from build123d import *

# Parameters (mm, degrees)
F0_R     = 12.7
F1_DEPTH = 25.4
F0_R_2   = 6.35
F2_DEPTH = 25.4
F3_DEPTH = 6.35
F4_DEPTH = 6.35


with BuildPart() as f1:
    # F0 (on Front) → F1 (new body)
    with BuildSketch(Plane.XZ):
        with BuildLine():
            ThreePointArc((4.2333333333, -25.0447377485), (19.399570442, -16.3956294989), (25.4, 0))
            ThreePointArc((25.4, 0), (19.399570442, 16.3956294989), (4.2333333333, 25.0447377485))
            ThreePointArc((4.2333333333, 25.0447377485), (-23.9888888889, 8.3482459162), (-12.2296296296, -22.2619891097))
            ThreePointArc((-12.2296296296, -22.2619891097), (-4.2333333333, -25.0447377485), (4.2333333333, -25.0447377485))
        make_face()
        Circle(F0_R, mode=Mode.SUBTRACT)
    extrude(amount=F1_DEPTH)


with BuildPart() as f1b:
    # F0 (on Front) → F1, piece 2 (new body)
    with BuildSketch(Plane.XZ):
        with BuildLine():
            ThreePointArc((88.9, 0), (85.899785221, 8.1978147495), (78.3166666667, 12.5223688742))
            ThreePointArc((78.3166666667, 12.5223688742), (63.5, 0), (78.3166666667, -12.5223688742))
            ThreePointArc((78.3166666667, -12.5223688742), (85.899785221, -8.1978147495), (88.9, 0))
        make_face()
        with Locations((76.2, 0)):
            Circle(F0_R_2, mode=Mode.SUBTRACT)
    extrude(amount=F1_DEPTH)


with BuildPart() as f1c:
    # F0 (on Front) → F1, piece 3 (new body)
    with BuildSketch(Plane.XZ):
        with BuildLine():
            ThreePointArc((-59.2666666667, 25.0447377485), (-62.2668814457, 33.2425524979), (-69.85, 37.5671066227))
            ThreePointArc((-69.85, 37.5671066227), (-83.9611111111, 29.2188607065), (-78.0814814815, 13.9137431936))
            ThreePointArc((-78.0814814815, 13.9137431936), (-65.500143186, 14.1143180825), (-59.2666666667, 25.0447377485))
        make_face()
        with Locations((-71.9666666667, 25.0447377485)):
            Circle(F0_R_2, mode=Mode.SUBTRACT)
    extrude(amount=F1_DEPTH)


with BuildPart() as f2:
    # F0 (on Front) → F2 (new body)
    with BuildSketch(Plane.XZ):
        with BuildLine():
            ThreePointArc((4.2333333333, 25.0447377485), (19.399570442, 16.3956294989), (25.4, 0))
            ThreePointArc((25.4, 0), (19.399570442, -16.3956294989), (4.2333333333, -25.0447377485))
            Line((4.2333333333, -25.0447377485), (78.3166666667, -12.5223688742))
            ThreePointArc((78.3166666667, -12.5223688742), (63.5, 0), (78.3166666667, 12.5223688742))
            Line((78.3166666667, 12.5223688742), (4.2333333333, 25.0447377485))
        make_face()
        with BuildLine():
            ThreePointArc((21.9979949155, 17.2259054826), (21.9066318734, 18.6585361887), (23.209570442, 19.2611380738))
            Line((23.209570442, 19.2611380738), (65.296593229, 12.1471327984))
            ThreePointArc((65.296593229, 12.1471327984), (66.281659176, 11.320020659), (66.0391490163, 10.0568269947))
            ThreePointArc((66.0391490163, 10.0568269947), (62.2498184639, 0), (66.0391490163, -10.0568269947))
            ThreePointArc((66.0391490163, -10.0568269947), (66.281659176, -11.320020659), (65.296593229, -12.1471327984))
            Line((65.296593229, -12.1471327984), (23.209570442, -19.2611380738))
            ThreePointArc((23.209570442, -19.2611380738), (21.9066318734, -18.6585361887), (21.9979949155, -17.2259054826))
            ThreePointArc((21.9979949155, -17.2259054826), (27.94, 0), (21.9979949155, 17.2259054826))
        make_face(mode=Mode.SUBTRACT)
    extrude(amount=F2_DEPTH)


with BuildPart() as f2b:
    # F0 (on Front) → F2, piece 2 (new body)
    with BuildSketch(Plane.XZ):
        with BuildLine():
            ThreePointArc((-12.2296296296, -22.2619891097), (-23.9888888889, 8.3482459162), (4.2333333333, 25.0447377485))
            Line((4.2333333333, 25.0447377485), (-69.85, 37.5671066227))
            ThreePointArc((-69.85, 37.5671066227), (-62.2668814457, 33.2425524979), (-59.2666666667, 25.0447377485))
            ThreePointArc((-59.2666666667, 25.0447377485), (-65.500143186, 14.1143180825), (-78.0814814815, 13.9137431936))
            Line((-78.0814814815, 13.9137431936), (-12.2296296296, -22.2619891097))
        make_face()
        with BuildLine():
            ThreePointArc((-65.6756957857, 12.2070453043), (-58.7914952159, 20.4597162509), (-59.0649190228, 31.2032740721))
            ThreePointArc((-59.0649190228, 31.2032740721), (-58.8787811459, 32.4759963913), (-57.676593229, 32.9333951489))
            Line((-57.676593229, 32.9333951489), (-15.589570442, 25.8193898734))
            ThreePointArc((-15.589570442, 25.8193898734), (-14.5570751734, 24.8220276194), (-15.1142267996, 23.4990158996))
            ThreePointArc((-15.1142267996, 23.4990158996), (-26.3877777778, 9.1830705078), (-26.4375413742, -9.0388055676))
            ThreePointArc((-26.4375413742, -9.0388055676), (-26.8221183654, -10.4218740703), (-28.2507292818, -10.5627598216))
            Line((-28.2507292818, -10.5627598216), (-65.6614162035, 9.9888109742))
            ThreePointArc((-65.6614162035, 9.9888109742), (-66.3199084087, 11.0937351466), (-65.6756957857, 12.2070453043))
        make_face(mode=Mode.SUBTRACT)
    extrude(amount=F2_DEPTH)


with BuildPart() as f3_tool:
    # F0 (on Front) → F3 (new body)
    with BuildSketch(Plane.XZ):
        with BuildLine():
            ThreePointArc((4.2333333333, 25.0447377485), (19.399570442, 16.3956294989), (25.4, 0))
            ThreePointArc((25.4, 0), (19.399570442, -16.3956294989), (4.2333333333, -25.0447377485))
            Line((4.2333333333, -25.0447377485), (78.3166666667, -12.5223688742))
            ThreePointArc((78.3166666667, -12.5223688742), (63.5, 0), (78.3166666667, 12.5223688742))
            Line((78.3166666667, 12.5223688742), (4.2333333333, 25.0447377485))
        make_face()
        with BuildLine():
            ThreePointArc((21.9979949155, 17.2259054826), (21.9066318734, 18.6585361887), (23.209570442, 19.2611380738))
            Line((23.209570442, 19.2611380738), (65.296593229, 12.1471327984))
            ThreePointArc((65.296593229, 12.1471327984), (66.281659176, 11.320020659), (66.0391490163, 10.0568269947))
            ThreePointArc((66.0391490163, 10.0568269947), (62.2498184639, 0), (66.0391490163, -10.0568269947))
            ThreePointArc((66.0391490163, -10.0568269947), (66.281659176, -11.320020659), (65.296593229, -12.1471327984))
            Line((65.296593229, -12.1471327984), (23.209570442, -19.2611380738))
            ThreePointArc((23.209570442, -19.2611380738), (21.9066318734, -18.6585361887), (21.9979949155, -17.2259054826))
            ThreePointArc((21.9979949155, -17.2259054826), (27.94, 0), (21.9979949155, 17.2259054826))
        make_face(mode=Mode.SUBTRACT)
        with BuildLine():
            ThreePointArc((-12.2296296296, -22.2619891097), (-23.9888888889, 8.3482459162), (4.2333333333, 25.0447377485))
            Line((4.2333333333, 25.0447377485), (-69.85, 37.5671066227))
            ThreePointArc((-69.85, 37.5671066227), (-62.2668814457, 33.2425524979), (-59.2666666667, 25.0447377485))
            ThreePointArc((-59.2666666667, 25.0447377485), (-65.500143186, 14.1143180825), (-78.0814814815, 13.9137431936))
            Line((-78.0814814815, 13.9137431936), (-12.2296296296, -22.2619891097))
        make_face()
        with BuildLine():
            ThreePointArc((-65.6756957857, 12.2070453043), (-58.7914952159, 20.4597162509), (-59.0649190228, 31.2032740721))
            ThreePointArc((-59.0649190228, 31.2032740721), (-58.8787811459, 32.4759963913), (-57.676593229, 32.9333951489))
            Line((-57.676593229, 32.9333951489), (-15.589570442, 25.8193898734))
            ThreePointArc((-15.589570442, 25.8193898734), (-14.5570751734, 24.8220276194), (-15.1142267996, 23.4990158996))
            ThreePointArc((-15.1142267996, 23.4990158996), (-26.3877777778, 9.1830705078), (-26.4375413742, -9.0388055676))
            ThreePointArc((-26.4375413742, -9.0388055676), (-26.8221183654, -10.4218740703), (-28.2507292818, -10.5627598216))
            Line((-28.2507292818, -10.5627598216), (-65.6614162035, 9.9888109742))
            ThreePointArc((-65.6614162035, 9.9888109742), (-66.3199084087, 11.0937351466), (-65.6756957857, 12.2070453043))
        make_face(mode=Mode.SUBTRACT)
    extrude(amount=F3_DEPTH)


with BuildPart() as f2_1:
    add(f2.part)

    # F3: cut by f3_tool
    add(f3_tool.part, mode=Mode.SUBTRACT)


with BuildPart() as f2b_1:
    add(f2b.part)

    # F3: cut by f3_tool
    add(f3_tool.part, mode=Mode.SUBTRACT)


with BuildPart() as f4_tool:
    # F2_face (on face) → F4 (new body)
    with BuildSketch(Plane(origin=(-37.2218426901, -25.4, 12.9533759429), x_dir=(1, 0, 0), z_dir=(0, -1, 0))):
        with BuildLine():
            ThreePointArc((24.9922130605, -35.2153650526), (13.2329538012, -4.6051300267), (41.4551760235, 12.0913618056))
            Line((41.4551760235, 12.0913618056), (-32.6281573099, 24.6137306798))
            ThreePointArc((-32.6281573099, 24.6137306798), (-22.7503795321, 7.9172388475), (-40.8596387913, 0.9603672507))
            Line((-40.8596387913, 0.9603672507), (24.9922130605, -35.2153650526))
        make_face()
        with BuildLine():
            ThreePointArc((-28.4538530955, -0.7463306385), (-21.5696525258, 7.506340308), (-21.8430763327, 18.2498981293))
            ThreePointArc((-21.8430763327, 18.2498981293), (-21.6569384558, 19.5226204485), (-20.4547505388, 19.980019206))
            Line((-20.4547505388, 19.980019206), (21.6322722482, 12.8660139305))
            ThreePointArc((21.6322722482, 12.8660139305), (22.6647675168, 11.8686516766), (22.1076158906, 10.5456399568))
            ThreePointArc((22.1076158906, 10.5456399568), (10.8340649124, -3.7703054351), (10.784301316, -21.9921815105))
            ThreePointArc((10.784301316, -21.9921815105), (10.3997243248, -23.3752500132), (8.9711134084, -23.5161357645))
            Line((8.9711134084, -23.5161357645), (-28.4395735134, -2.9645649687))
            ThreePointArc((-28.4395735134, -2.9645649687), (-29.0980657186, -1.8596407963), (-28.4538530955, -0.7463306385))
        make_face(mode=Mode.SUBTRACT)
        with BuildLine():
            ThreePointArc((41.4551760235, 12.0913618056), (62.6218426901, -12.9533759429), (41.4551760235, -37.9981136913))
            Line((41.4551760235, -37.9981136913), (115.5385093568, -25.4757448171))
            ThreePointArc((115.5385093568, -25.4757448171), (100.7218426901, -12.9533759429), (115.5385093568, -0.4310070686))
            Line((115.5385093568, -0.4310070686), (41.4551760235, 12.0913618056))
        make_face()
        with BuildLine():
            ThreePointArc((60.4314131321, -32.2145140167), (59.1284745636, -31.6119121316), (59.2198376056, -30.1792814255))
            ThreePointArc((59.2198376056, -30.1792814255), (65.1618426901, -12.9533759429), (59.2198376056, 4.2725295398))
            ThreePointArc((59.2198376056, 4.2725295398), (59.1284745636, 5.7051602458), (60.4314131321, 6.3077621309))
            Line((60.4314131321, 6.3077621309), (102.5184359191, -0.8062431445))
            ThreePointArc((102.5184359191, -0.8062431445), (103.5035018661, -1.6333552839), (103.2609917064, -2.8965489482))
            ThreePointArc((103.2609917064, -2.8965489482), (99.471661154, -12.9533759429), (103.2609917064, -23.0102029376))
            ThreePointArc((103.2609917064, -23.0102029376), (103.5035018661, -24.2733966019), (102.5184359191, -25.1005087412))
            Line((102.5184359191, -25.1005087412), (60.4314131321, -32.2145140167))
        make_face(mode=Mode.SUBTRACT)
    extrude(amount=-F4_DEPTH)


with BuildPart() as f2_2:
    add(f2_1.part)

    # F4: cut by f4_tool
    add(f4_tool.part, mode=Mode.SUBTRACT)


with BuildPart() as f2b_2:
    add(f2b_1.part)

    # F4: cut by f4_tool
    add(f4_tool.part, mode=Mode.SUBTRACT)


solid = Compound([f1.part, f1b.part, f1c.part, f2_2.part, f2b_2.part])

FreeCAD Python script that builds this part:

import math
import FreeCAD as App
import Part
import Sketcher
from FreeCAD import Vector
Q = App.Units.Quantity

doc = App.newDocument("Part")
body = doc.addObject("PartDesign::Body", "Body")

sketch1 = doc.addObject("Sketcher::SketchObject", "Sketch")
body.addObject(sketch1)
sketch1.AttachmentSupport = (doc.XZ_Plane, [""])
sketch1.MapMode = "FlatFace"
sketch1.addGeometry(Part.ArcOfCircle(Part.Circle(Vector(0, 0, 0), Vector(0, 0, 1), 25), math.radians(0), math.radians(80)), False)
sketch1.addGeometry(Part.ArcOfCircle(Part.Circle(Vector(0, 0, 0), Vector(0, 0, 1), 25), math.radians(80), math.radians(241)), False)
sketch1.addGeometry(Part.ArcOfCircle(Part.Circle(Vector(0, 0, 0), Vector(0, 0, 1), 25), math.radians(-119), math.radians(0)), False)
sketch1.addGeometry(Part.Circle(Vector(0, 0, 0), Vector(0, 0, 1), 13), False)
sketch1.addConstraint(Sketcher.Constraint("Tangent", 0, 2, 1, 1))
sketch1.addConstraint(Sketcher.Constraint("Tangent", 1, 2, 2, 1))
sketch1.addConstraint(Sketcher.Constraint("Tangent", 2, 2, 0, 1))
sketch1.addConstraint(Sketcher.Constraint("Coincident", 0, 3, -1, 1))
sketch1.addConstraint(Sketcher.Constraint("Coincident", 3, 3, -1, 1))
sketch1.addConstraint(Sketcher.Constraint("PointOnObject", 2, 2, -1))
sketch1.addConstraint(Sketcher.Constraint("Diameter", 3, Q("1 in")))
sketch1.addConstraint(Sketcher.Constraint("Radius", 0, Q("1 in")))
sketch1.addConstraint(Sketcher.Constraint("DistanceX", 1, 2, -1, 1, 12.22963))
sketch1.addConstraint(Sketcher.Constraint("DistanceX", -1, 1, 0, 2, 4.233333))
pad1 = doc.addObject("PartDesign::Pad", "Pad")
body.addObject(pad1)
pad1.Profile = sketch1
pad1.Length = Q("1 in")
body2 = doc.addObject("PartDesign::Body", "Body001")

sketch2 = doc.addObject("Sketcher::SketchObject", "Sketch001")
body2.addObject(sketch2)
sketch2.AttachmentSupport = (doc.getObject("XZ_Plane001"), [""])
sketch2.MapMode = "FlatFace"
sketch2.addGeometry(Part.ArcOfCircle(Part.Circle(Vector(76, 0, 0), Vector(0, 0, 1), 13), math.radians(0), math.radians(80)), False)
sketch2.addGeometry(Part.ArcOfCircle(Part.Circle(Vector(76, 0, 0), Vector(0, 0, 1), 13), math.radians(80), math.radians(280)), False)
sketch2.addGeometry(Part.ArcOfCircle(Part.Circle(Vector(76, 0, 0), Vector(0, 0, 1), 13), math.radians(-80), math.radians(0)), False)
sketch2.addGeometry(Part.Circle(Vector(76, 0, 0), Vector(0, 0, 1), 6), False)
sketch2.addConstraint(Sketcher.Constraint("Tangent", 0, 2, 1, 1))
sketch2.addConstraint(Sketcher.Constraint("Tangent", 1, 2, 2, 1))
sketch2.addConstraint(Sketcher.Constraint("Tangent", 2, 2, 0, 1))
sketch2.addConstraint(Sketcher.Constraint("Coincident", 3, 3, 0, 3))
sketch2.addConstraint(Sketcher.Constraint("Symmetric", 0, 2, 1, 2, -1))
sketch2.addConstraint(Sketcher.Constraint("PointOnObject", 2, 2, -1))
sketch2.addConstraint(Sketcher.Constraint("Diameter", 3, Q("0.5 in")))
sketch2.addConstraint(Sketcher.Constraint("Radius", 0, Q("0.5 in")))
sketch2.addConstraint(Sketcher.Constraint("DistanceX", -1, 1, 0, 3, Q("3 in")))
sketch2.addConstraint(Sketcher.Constraint("DistanceY", -1, 1, 0, 2, 12.522369))
pad2 = doc.addObject("PartDesign::Pad", "Pad001")
body2.addObject(pad2)
pad2.Profile = sketch2
pad2.Length = Q("1 in")
body3 = doc.addObject("PartDesign::Body", "Body002")

sketch3 = doc.addObject("Sketcher::SketchObject", "Sketch002")
body3.addObject(sketch3)
sketch3.AttachmentSupport = (doc.getObject("XZ_Plane002"), [""])
sketch3.MapMode = "FlatFace"
sketch3.addGeometry(Part.ArcOfCircle(Part.Circle(Vector(-72, 25, 0), Vector(0, 0, 1), 13), math.radians(80), math.radians(241)), False)
sketch3.addGeometry(Part.ArcOfCircle(Part.Circle(Vector(-72, 25, 0), Vector(0, 0, 1), 13), math.radians(-119), math.radians(80)), False)
sketch3.addGeometry(Part.Circle(Vector(-72, 25, 0), Vector(0, 0, 1), 6), False)
sketch3.addConstraint(Sketcher.Constraint("Tangent", 0, 1, 1, 2))
sketch3.addConstraint(Sketcher.Constraint("Coincident", 1, 1, 0, 2))
sketch3.addConstraint(Sketcher.Constraint("Coincident", 2, 3, 0, 3))
sketch3.addConstraint(Sketcher.Constraint("Diameter", 2, Q("0.5 in")))
sketch3.addConstraint(Sketcher.Constraint("Radius", 0, Q("0.5 in")))
sketch3.addConstraint(Sketcher.Constraint("DistanceX", 0, 1, -1, 1, Q("2.75 in")))
sketch3.addConstraint(Sketcher.Constraint("DistanceX", 1, 1, -1, 1, 78.081481))
sketch3.addConstraint(Sketcher.Constraint("DistanceY", 2, 3, 0, 1, 12.522369))
sketch3.addConstraint(Sketcher.Constraint("DistanceY", -1, 1, 0, 3, 25.044738))
pad3 = doc.addObject("PartDesign::Pad", "Pad002")
body3.addObject(pad3)
pad3.Profile = sketch3
pad3.Length = Q("1 in")
body4 = doc.addObject("PartDesign::Body", "Body003")

sketch4 = doc.addObject("Sketcher::SketchObject", "Sketch003")
body4.addObject(sketch4)
sketch4.AttachmentSupport = (doc.getObject("XZ_Plane003"), [""])
sketch4.MapMode = "FlatFace"
sketch4.addGeometry(Part.ArcOfCircle(Part.Circle(Vector(0, 0, 0), Vector(0, 0, 1), 25.4), math.radians(0), math.radians(80.405932)), False)
sketch4.addGeometry(Part.ArcOfCircle(Part.Circle(Vector(0, 0, 0), Vector(0, 0, 1), 25.4), math.radians(-80.405932), math.radians(0)), False)
sketch4.addGeometry(Part.LineSegment(Vector(4.233333, -25.044738, 0), Vector(78.316667, -12.522369, 0)), False)
sketch4.addGeometry(Part.ArcOfCircle(Part.Circle(Vector(76.2, 0, 0), Vector(0, 0, 1), 12.7), math.radians(80.405932), math.radians(279.594068)), False)
sketch4.addGeometry(Part.LineSegment(Vector(78.316667, 12.522369, 0), Vector(4.233333, 25.044738, 0)), False)
sketch4.addGeometry(Part.ArcOfCircle(Part.Circle(Vector(0, 0, 0), Vector(0, 0, 1), 27.94), math.radians(-38.063326), math.radians(38.063326)), False)
sketch4.addGeometry(Part.ArcOfCircle(Part.Circle(Vector(22.997904, 18.008901, 0), Vector(0, 0, 1), 1.27), math.radians(80.405932), math.radians(218.063326)), False)
sketch4.addGeometry(Part.LineSegment(Vector(23.20957, 19.261138, 0), Vector(65.296593, 12.147133, 0)), False)
sketch4.addGeometry(Part.ArcOfCircle(Part.Circle(Vector(65.084927, 10.894896, 0), Vector(0, 0, 1), 1.27), math.radians(-41.292001), math.radians(80.405932)), False)
sketch4.addGeometry(Part.ArcOfCircle(Part.Circle(Vector(77.489818, 0, 0), Vector(0, 0, 1), 15.24), math.radians(138.707999), math.radians(221.292001)), False)
sketch4.addGeometry(Part.ArcOfCircle(Part.Circle(Vector(65.084927, -10.894896, 0), Vector(0, 0, 1), 1.27), math.radians(-80.405932), math.radians(41.292001)), False)
sketch4.addGeometry(Part.LineSegment(Vector(65.296593, -12.147133, 0), Vector(23.20957, -19.261138, 0)), False)
sketch4.addGeometry(Part.ArcOfCircle(Part.Circle(Vector(22.997904, -18.008901, 0), Vector(0, 0, 1), 1.27), math.radians(141.936674), math.radians(279.594068)), False)
sketch4.addConstraint(Sketcher.Constraint("Coincident", 0, 1, 1, 2))
sketch4.addConstraint(Sketcher.Constraint("Coincident", 1, 1, 2, 1))
sketch4.addConstraint(Sketcher.Constraint("Coincident", 2, 2, 3, 2))
sketch4.addConstraint(Sketcher.Constraint("Coincident", 3, 1, 4, 1))
sketch4.addConstraint(Sketcher.Constraint("Coincident", 4, 2, 0, 2))
sketch4.addConstraint(Sketcher.Constraint("Coincident", 5, 2, 6, 2))
sketch4.addConstraint(Sketcher.Constraint("Coincident", 6, 1, 7, 1))
sketch4.addConstraint(Sketcher.Constraint("Coincident", 7, 2, 8, 2))
sketch4.addConstraint(Sketcher.Constraint("Coincident", 8, 1, 9, 1))
sketch4.addConstraint(Sketcher.Constraint("Coincident", 9, 2, 10, 2))
sketch4.addConstraint(Sketcher.Constraint("Coincident", 10, 1, 11, 1))
sketch4.addConstraint(Sketcher.Constraint("Coincident", 11, 2, 12, 2))
sketch4.addConstraint(Sketcher.Constraint("Coincident", 12, 1, 5, 1))
sketch4.addConstraint(Sketcher.Constraint("Coincident", 0, 3, -1, 1))
sketch4.addConstraint(Sketcher.Constraint("Coincident", 1, 3, -1, 1))
sketch4.addConstraint(Sketcher.Constraint("Coincident", 5, 3, -1, 1))
sketch4.addConstraint(Sketcher.Constraint("PointOnObject", 3, 3, -1))
sketch4.addConstraint(Sketcher.Constraint("PointOnObject", 9, 3, -1))
sketch4.addConstraint(Sketcher.Constraint("PointOnObject", 0, 1, -1))
sketch4.addConstraint(Sketcher.Constraint("Radius", 0, Q("1 in")))
sketch4.addConstraint(Sketcher.Constraint("Radius", 3, Q("0.5 in")))
sketch4.addConstraint(Sketcher.Constraint("Radius", 5, Q("1.1 in")))
sketch4.addConstraint(Sketcher.Constraint("Radius", 9, Q("0.6 in")))
sketch4.addConstraint(Sketcher.Constraint("Radius", 6, Q("0.05 in")))
sketch4.addConstraint(Sketcher.Constraint("Radius", 8, Q("0.05 in")))
sketch4.addConstraint(Sketcher.Constraint("Radius", 10, Q("0.05 in")))
sketch4.addConstraint(Sketcher.Constraint("Radius", 12, Q("0.05 in")))
sketch4.addConstraint(Sketcher.Constraint("DistanceX", -1, 1, 3, 3, Q("3 in")))
sketch4.addConstraint(Sketcher.Constraint("DistanceX", 5, 2, 6, 1, Q("0.0476998 in")))
sketch4.addConstraint(Sketcher.Constraint("DistanceX", 12, 1, 11, 2, Q("0.0476998 in")))
sketch4.addConstraint(Sketcher.Constraint("DistanceY", -1, 1, 6, 3, 18.008901))
sketch4.addConstraint(Sketcher.Constraint("DistanceY", 12, 3, -1, 1, 18.008901))
sketch4.addConstraint(Sketcher.Constraint("DistanceY", 6, 1, 4, 2, 5.7836))
sketch4.addConstraint(Sketcher.Constraint("DistanceY", 1, 1, 11, 2, 5.7836))
sketch4.addConstraint(Sketcher.Constraint("Distance", 7, 42.684032))
sketch4.addConstraint(Sketcher.Constraint("Distance", 11, 42.684032))
sketch4.addConstraint(Sketcher.Constraint("DistanceX", -1, 1, 9, 3, 77.489818))
sketch4.addConstraint(Sketcher.Constraint("DistanceY", 2, 2, -1, 1, 12.522369))
sketch4.addConstraint(Sketcher.Constraint("DistanceY", -1, 1, 3, 1, 12.522369))
sketch4.addConstraint(Sketcher.Constraint("DistanceX", -1, 1, 6, 1, 23.20957))
sketch4.addConstraint(Sketcher.Constraint("DistanceX", -1, 1, 8, 1, 66.039149))
sketch4.addConstraint(Sketcher.Constraint("DistanceX", -1, 1, 9, 2, 66.039149))
sketch4.addConstraint(Sketcher.Constraint("DistanceX", -1, 1, 11, 2, 23.20957))
sketch4.addConstraint(Sketcher.Constraint("DistanceX", 8, 3, 9, 3, 12.404892))
sketch4.addConstraint(Sketcher.Constraint("DistanceX", 10, 3, 9, 3, 12.404892))
pad4 = doc.addObject("PartDesign::Pad", "Pad003")
body4.addObject(pad4)
pad4.Profile = sketch4
pad4.Length = Q("1 in")
body5 = doc.addObject("PartDesign::Body", "Body004")

sketch5 = doc.addObject("Sketcher::SketchObject", "Sketch004")
body5.addObject(sketch5)
sketch5.AttachmentSupport = (doc.getObject("XZ_Plane004"), [""])
sketch5.MapMode = "FlatFace"
sketch5.addGeometry(Part.ArcOfCircle(Part.Circle(Vector(0, 0, 0), Vector(0, 0, 1), 25.4), math.radians(80), math.radians(241)), False)
sketch5.addGeometry(Part.LineSegment(Vector(4.2, 25, 0), Vector(-69.8, 37.6, 0)), False)
sketch5.addGeometry(Part.ArcOfCircle(Part.Circle(Vector(-72, 25, 0), Vector(0, 0, 1), 12.7), math.radians(-119), math.radians(80)), False)
sketch5.addGeometry(Part.LineSegment(Vector(-78.1, 13.9, 0), Vector(-12.2, -22.3, 0)), False)
sketch5.addGeometry(Part.ArcOfCircle(Part.Circle(Vector(-65, 11.1, 0), Vector(0, 0, 1), 1.3), math.radians(120), math.radians(241)), False)
sketch5.addGeometry(Part.ArcOfCircle(Part.Circle(Vector(-73.2, 25.5, 0), Vector(0, 0, 1), 15.2), math.radians(-60), math.radians(22)), False)
sketch5.addGeometry(Part.ArcOfCircle(Part.Circle(Vector(-57.9, 31.7, 0), Vector(0, 0, 1), 1.3), math.radians(80), math.radians(202)), False)
sketch5.addGeometry(Part.LineSegment(Vector(-57.7, 32.9, 0), Vector(-15.6, 25.8, 0)), False)
sketch5.addGeometry(Part.ArcOfCircle(Part.Circle(Vector(-15.8, 24.6, 0), Vector(0, 0, 1), 1.3), math.radians(-57), math.radians(80)), False)
sketch5.addGeometry(Part.ArcOfCircle(Part.Circle(Vector(0, 0, 0), Vector(0, 0, 1), 27.9), math.radians(123), math.radians(199)), False)
sketch5.addGeometry(Part.ArcOfCircle(Part.Circle(Vector(-27.6, -9.4, 0), Vector(0, 0, 1), 1.3), math.radians(-119), math.radians(19)), False)
sketch5.addGeometry(Part.LineSegment(Vector(-28.3, -10.6, 0), Vector(-65.7, 10, 0)), False)
sketch5.addConstraint(Sketcher.Constraint("Tangent", 0, 1, 1, 1))
sketch5.addConstraint(Sketcher.Constraint("Tangent", 1, 2, 2, 2))
sketch5.addConstraint(Sketcher.Constraint("Tangent", 2, 1, 3, 1))
sketch5.addConstraint(Sketcher.Constraint("Tangent", 3, 2, 0, 2))
sketch5.addConstraint(Sketcher.Constraint("Tangent", 4, 1, 5, 1))
sketch5.addConstraint(Sketcher.Constraint("Tangent", 5, 2, 6, 2))
sketch5.addConstraint(Sketcher.Constraint("Tangent", 6, 1, 7, 1))
sketch5.addConstraint(Sketcher.Constraint("Tangent", 7, 2, 8, 2))
sketch5.addConstraint(Sketcher.Constraint("Tangent", 8, 1, 9, 1))
sketch5.addConstraint(Sketcher.Constraint("Tangent", 9, 2, 10, 2))
sketch5.addConstraint(Sketcher.Constraint("Tangent", 10, 1, 11, 1))
sketch5.addConstraint(Sketcher.Constraint("Tangent", 11, 2, 4, 2))
sketch5.addConstraint(Sketcher.Constraint("Coincident", 0, 3, -1, 1))
sketch5.addConstraint(Sketcher.Constraint("Coincident", 9, 3, -1, 1))
sketch5.addConstraint(Sketcher.Constraint("Equal", 4, 6))
sketch5.addConstraint(Sketcher.Constraint("Equal", 6, 8))
sketch5.addConstraint(Sketcher.Constraint("Equal", 8, 10))
sketch5.addConstraint(Sketcher.Constraint("Parallel", 1, 7))
sketch5.addConstraint(Sketcher.Constraint("Parallel", 3, 11))
sketch5.addConstraint(Sketcher.Constraint("Horizontal", 2, 3, 0, 1))
sketch5.addConstraint(Sketcher.Constraint("Equal", 7, 11))
sketch5.addConstraint(Sketcher.Constraint("Radius", 0, Q("1 in")))
sketch5.addConstraint(Sketcher.Constraint("Radius", 2, Q("0.5 in")))
sketch5.addConstraint(Sketcher.Constraint("Radius", 5, Q("0.6 in")))
sketch5.addConstraint(Sketcher.Constraint("Radius", 9, Q("1.1 in")))
sketch5.addConstraint(Sketcher.Constraint("Radius", 4, Q("0.05 in")))
sketch5.addConstraint(Sketcher.Constraint("DistanceX", 1, 2, -1, 1, Q("2.75 in")))
sketch5.addConstraint(Sketcher.Constraint("DistanceY", 10, 3, 0, 1, 34.494398))
sketch5.addConstraint(Sketcher.Constraint("Distance", 7, 42.684032))
sketch5.addConstraint(Sketcher.Constraint("DistanceX", 5, 3, -1, 1, 73.184829))
pad5 = doc.addObject("PartDesign::Pad", "Pad004")
body5.addObject(pad5)
pad5.Profile = sketch5
pad5.Length = Q("1 in")
body6 = doc.addObject("PartDesign::Body", "Body005")
body6.AllowCompound = True

sketch6 = doc.addObject("Sketcher::SketchObject", "Sketch005")
body6.addObject(sketch6)
sketch6.AttachmentSupport = (doc.getObject("XZ_Plane005"), [""])
sketch6.MapMode = "FlatFace"
sketch6.addGeometry(Part.ArcOfCircle(Part.Circle(Vector(0, 0, 0), Vector(0, 0, 1), 25.4), math.radians(0), math.radians(80.405932)), False)
sketch6.addGeometry(Part.ArcOfCircle(Part.Circle(Vector(0, 0, 0), Vector(0, 0, 1), 25.4), math.radians(-80.405932), math.radians(0)), False)
sketch6.addGeometry(Part.LineSegment(Vector(4.233333, -25.044738, 0), Vector(78.316667, -12.522369, 0)), False)
sketch6.addGeometry(Part.ArcOfCircle(Part.Circle(Vector(76.2, 0, 0), Vector(0, 0, 1), 12.7), math.radians(80.405932), math.radians(279.594068)), False)
sketch6.addGeometry(Part.LineSegment(Vector(78.316667, 12.522369, 0), Vector(4.233333, 25.044738, 0)), False)
sketch6.addGeometry(Part.ArcOfCircle(Part.Circle(Vector(0, 0, 0), Vector(0, 0, 1), 27.94), math.radians(-38.063326), math.radians(38.063326)), False)
sketch6.addGeometry(Part.ArcOfCircle(Part.Circle(Vector(22.997904, 18.008901, 0), Vector(0, 0, 1), 1.27), math.radians(80.405932), math.radians(218.063326)), False)
sketch6.addGeometry(Part.LineSegment(Vector(23.20957, 19.261138, 0), Vector(65.296593, 12.147133, 0)), False)
sketch6.addGeometry(Part.ArcOfCircle(Part.Circle(Vector(65.084927, 10.894896, 0), Vector(0, 0, 1), 1.27), math.radians(-41.292001), math.radians(80.405932)), False)
sketch6.addGeometry(Part.ArcOfCircle(Part.Circle(Vector(77.489818, 0, 0), Vector(0, 0, 1), 15.24), math.radians(138.707999), math.radians(221.292001)), False)
sketch6.addGeometry(Part.ArcOfCircle(Part.Circle(Vector(65.084927, -10.894896, 0), Vector(0, 0, 1), 1.27), math.radians(-80.405932), math.radians(41.292001)), False)
sketch6.addGeometry(Part.LineSegment(Vector(65.296593, -12.147133, 0), Vector(23.20957, -19.261138, 0)), False)
sketch6.addGeometry(Part.ArcOfCircle(Part.Circle(Vector(22.997904, -18.008901, 0), Vector(0, 0, 1), 1.27), math.radians(141.936674), math.radians(279.594068)), False)
sketch6.addGeometry(Part.ArcOfCircle(Part.Circle(Vector(0, 0, 0), Vector(0, 0, 1), 25.4), math.radians(80.405932), math.radians(241.217795)), False)
sketch6.addGeometry(Part.LineSegment(Vector(4.233333, 25.044738, 0), Vector(-69.85, 37.567107, 0)), False)
sketch6.addGeometry(Part.ArcOfCircle(Part.Circle(Vector(-71.966667, 25.044738, 0), Vector(0, 0, 1), 12.7), math.radians(-118.782205), math.radians(80.405932)), False)
sketch6.addGeometry(Part.LineSegment(Vector(-78.081481, 13.913743, 0), Vector(-12.22963, -22.261989, 0)), False)
sketch6.addGeometry(Part.ArcOfCircle(Part.Circle(Vector(-65.049935, 11.10191, 0), Vector(0, 0, 1), 1.27), math.radians(119.519862), math.radians(241.217795)), False)
sketch6.addGeometry(Part.ArcOfCircle(Part.Circle(Vector(-73.184829, 25.468664, 0), Vector(0, 0, 1), 15.24), math.radians(-60.480138), math.radians(22.103865)), False)
sketch6.addGeometry(Part.ArcOfCircle(Part.Circle(Vector(-57.88826, 31.681158, 0), Vector(0, 0, 1), 1.27), math.radians(80.405932), math.radians(202.103865)), False)
sketch6.addGeometry(Part.LineSegment(Vector(-57.676593, 32.933395, 0), Vector(-15.58957, 25.81939, 0)), False)
sketch6.addGeometry(Part.ArcOfCircle(Part.Circle(Vector(-15.801237, 24.567153, 0), Vector(0, 0, 1), 1.27), math.radians(-57.251463), math.radians(80.405932)), False)
sketch6.addGeometry(Part.ArcOfCircle(Part.Circle(Vector(0, 0, 0), Vector(0, 0, 1), 27.94), math.radians(122.748537), math.radians(198.87519)), False)
sketch6.addGeometry(Part.ArcOfCircle(Part.Circle(Vector(-27.639248, -9.44966, 0), Vector(0, 0, 1), 1.27), math.radians(-118.782205), math.radians(18.87519)), False)
sketch6.addGeometry(Part.LineSegment(Vector(-28.250729, -10.56276, 0), Vector(-65.661416, 9.988811, 0)), False)
sketch6.addConstraint(Sketcher.Constraint("Coincident", 0, 1, 1, 2))
sketch6.addConstraint(Sketcher.Constraint("Coincident", 1, 1, 2, 1))
sketch6.addConstraint(Sketcher.Constraint("Coincident", 2, 2, 3, 2))
sketch6.addConstraint(Sketcher.Constraint("Coincident", 3, 1, 4, 1))
sketch6.addConstraint(Sketcher.Constraint("Coincident", 4, 2, 0, 2))
sketch6.addConstraint(Sketcher.Constraint("Coincident", 5, 2, 6, 2))
sketch6.addConstraint(Sketcher.Constraint("Coincident", 6, 1, 7, 1))
sketch6.addConstraint(Sketcher.Constraint("Coincident", 7, 2, 8, 2))
sketch6.addConstraint(Sketcher.Constraint("Coincident", 8, 1, 9, 1))
sketch6.addConstraint(Sketcher.Constraint("Coincident", 9, 2, 10, 2))
sketch6.addConstraint(Sketcher.Constraint("Coincident", 10, 1, 11, 1))
sketch6.addConstraint(Sketcher.Constraint("Coincident", 11, 2, 12, 2))
sketch6.addConstraint(Sketcher.Constraint("Coincident", 12, 1, 5, 1))
sketch6.addConstraint(Sketcher.Constraint("Coincident", 13, 1, 14, 1))
sketch6.addConstraint(Sketcher.Constraint("Coincident", 14, 2, 15, 2))
sketch6.addConstraint(Sketcher.Constraint("Coincident", 15, 1, 16, 1))
sketch6.addConstraint(Sketcher.Constraint("Coincident", 16, 2, 13, 2))
sketch6.addConstraint(Sketcher.Constraint("Coincident", 17, 1, 18, 1))
sketch6.addConstraint(Sketcher.Constraint("Coincident", 18, 2, 19, 2))
sketch6.addConstraint(Sketcher.Constraint("Coincident", 19, 1, 20, 1))
sketch6.addConstraint(Sketcher.Constraint("Coincident", 20, 2, 21, 2))
sketch6.addConstraint(Sketcher.Constraint("Coincident", 21, 1, 22, 1))
sketch6.addConstraint(Sketcher.Constraint("Coincident", 22, 2, 23, 2))
sketch6.addConstraint(Sketcher.Constraint("Coincident", 23, 1, 24, 1))
sketch6.addConstraint(Sketcher.Constraint("Coincident", 24, 2, 17, 2))
sketch6.addConstraint(Sketcher.Constraint("Coincident", 0, 3, -1, 1))
sketch6.addConstraint(Sketcher.Constraint("Coincident", 1, 3, -1, 1))
sketch6.addConstraint(Sketcher.Constraint("Coincident", 5, 3, -1, 1))
sketch6.addConstraint(Sketcher.Constraint("Coincident", 13, 3, -1, 1))
sketch6.addConstraint(Sketcher.Constraint("Coincident", 22, 3, -1, 1))
sketch6.addConstraint(Sketcher.Constraint("Coincident", 13, 1, 4, 2))
sketch6.addConstraint(Sketcher.Constraint("PointOnObject", 3, 3, -1))
sketch6.addConstraint(Sketcher.Constraint("PointOnObject", 9, 3, -1))
sketch6.addConstraint(Sketcher.Constraint("PointOnObject", 0, 1, -1))
sketch6.addConstraint(Sketcher.Constraint("Radius", 0, Q("1 in")))
sketch6.addConstraint(Sketcher.Constraint("Radius", 3, Q("0.5 in")))
sketch6.addConstraint(Sketcher.Constraint("Radius", 5, Q("1.1 in")))
sketch6.addConstraint(Sketcher.Constraint("Radius", 9, Q("0.6 in")))
sketch6.addConstraint(Sketcher.Constraint("Radius", 15, Q("0.5 in")))
sketch6.addConstraint(Sketcher.Constraint("Radius", 18, Q("0.6 in")))
sketch6.addConstraint(Sketcher.Constraint("Radius", 22, Q("1.1 in")))
sketch6.addConstraint(Sketcher.Constraint("Radius", 6, Q("0.05 in")))
sketch6.addConstraint(Sketcher.Constraint("Radius", 8, Q("0.05 in")))
sketch6.addConstraint(Sketcher.Constraint("Radius", 10, Q("0.05 in")))
sketch6.addConstraint(Sketcher.Constraint("Radius", 12, Q("0.05 in")))
sketch6.addConstraint(Sketcher.Constraint("Radius", 17, Q("0.05 in")))
sketch6.addConstraint(Sketcher.Constraint("Radius", 19, Q("0.05 in")))
sketch6.addConstraint(Sketcher.Constraint("Radius", 21, Q("0.05 in")))
sketch6.addConstraint(Sketcher.Constraint("Radius", 23, Q("0.05 in")))
sketch6.addConstraint(Sketcher.Constraint("DistanceX", -1, 1, 3, 3, Q("3 in")))
sketch6.addConstraint(Sketcher.Constraint("DistanceX", 14, 2, -1, 1, Q("2.75 in")))
sketch6.addConstraint(Sketcher.Constraint("DistanceX", 5, 2, 6, 1, Q("0.0476998 in")))
sketch6.addConstraint(Sketcher.Constraint("DistanceX", 12, 1, 11, 2, Q("0.0476998 in")))
sketch6.addConstraint(Sketcher.Constraint("DistanceY", -1, 1, 6, 3, 18.008901))
sketch6.addConstraint(Sketcher.Constraint("DistanceY", 12, 3, -1, 1, 18.008901))
sketch6.addConstraint(Sketcher.Constraint("DistanceY", 6, 1, 4, 2, 5.7836))
sketch6.addConstraint(Sketcher.Constraint("DistanceY", 1, 1, 11, 2, 5.7836))
sketch6.addConstraint(Sketcher.Constraint("DistanceY", 23, 1, 23, 3, 1.113099))
sketch6.addConstraint(Sketcher.Constraint("DistanceX", 23, 1, 16, 2, 16.0211))
sketch6.addConstraint(Sketcher.Constraint("DistanceY", 24, 2, 17, 3, 1.113099))
sketch6.addConstraint(Sketcher.Constraint("Distance", 7, 42.684032))
sketch6.addConstraint(Sketcher.Constraint("Distance", 11, 42.684032))
sketch6.addConstraint(Sketcher.Constraint("Distance", 20, 42.684032))
sketch6.addConstraint(Sketcher.Constraint("Distance", 24, 42.684032))
sketch6.addConstraint(Sketcher.Constraint("DistanceX", -1, 1, 9, 3, 77.489818))
sketch6.addConstraint(Sketcher.Constraint("DistanceY", -1, 1, 17, 3, 11.10191))
sketch6.addConstraint(Sketcher.Constraint("DistanceX", 18, 3, -1, 1, 73.184829))
sketch6.addConstraint(Sketcher.Constraint("DistanceX", 19, 3, -1, 1, 57.88826))
sketch6.addConstraint(Sketcher.Constraint("DistanceY", -1, 1, 19, 3, 31.681158))
sketch6.addConstraint(Sketcher.Constraint("DistanceY", 2, 2, -1, 1, 12.522369))
sketch6.addConstraint(Sketcher.Constraint("DistanceY", -1, 1, 3, 1, 12.522369))
sketch6.addConstraint(Sketcher.Constraint("DistanceX", -1, 1, 6, 1, 23.20957))
sketch6.addConstraint(Sketcher.Constraint("DistanceX", -1, 1, 8, 1, 66.039149))
sketch6.addConstraint(Sketcher.Constraint("DistanceX", -1, 1, 9, 2, 66.039149))
sketch6.addConstraint(Sketcher.Constraint("DistanceX", -1, 1, 11, 2, 23.20957))
sketch6.addConstraint(Sketcher.Constraint("DistanceX", 15, 1, -1, 1, 78.081481))
sketch6.addConstraint(Sketcher.Constraint("DistanceX", 18, 2, -1, 1, 59.064919))
sketch6.addConstraint(Sketcher.Constraint("DistanceX", 20, 2, -1, 1, 15.58957))
sketch6.addConstraint(Sketcher.Constraint("DistanceY", -1, 1, 20, 2, 25.81939))
sketch6.addConstraint(Sketcher.Constraint("DistanceX", 22, 2, -1, 1, 26.437541))
sketch6.addConstraint(Sketcher.Constraint("DistanceX", 8, 3, 9, 3, 12.404892))
sketch6.addConstraint(Sketcher.Constraint("DistanceX", 10, 3, 9, 3, 12.404892))
sketch6.addConstraint(Sketcher.Constraint("DistanceX", 15, 3, 6, 3, 94.96457))
sketch6.addConstraint(Sketcher.Constraint("DistanceY", 15, 3, 19, 3, 6.636421))
sketch6.addConstraint(Sketcher.Constraint("DistanceX", 17, 1, 17, 3, 0.625761))
sketch6.addConstraint(Sketcher.Constraint("DistanceX", 21, 3, 21, 1, 0.68701))
pad6 = doc.addObject("PartDesign::Pad", "Pad005")
body6.addObject(pad6)
pad6.Profile = sketch6
pad6.Length = Q("0.25 in")
doc.recompute()

body7 = doc.addObject("PartDesign::Body", "Body006")
body7.BaseFeature = body6
boolean = doc.addObject("PartDesign::Boolean", "Boolean")
body4.addObject(boolean)
boolean.Type = "Cut"
boolean.addObjects([body7])
doc.recompute()

boolean2 = doc.addObject("PartDesign::Boolean", "Boolean001")
body5.addObject(boolean2)
boolean2.Type = "Cut"
boolean2.addObjects([body6])
body8 = doc.addObject("PartDesign::Body", "Body007")
body8.AllowCompound = True

sketch7 = doc.addObject("Sketcher::SketchObject", "Sketch006")
body8.addObject(sketch7)
sketch7.AttachmentSupport = (doc.getObject("XZ_Plane007"), [""])
sketch7.MapMode = "FlatFace"
sketch7.AttachmentOffset = App.Placement(Vector(0, 0, 1 * 25.4), App.Rotation())
sketch7.addGeometry(Part.ArcOfCircle(Part.Circle(Vector(0, 0, 0), Vector(0, 0, 1), 25.4), math.radians(80.405932), math.radians(241.217795)), False)
sketch7.addGeometry(Part.LineSegment(Vector(4.233333, 25.044738, 0), Vector(-69.85, 37.567107, 0)), False)
sketch7.addGeometry(Part.ArcOfCircle(Part.Circle(Vector(-71.966667, 25.044738, 0), Vector(0, 0, 1), 12.7), math.radians(-118.782205), math.radians(80.405932)), False)
sketch7.addGeometry(Part.LineSegment(Vector(-78.081481, 13.913743, 0), Vector(-12.22963, -22.261989, 0)), False)
sketch7.addGeometry(Part.ArcOfCircle(Part.Circle(Vector(-65.049935, 11.10191, 0), Vector(0, 0, 1), 1.27), math.radians(119.519862), math.radians(241.217795)), False)
sketch7.addGeometry(Part.ArcOfCircle(Part.Circle(Vector(-73.184829, 25.468664, 0), Vector(0, 0, 1), 15.24), math.radians(-60.480138), math.radians(22.103865)), False)
sketch7.addGeometry(Part.ArcOfCircle(Part.Circle(Vector(-57.88826, 31.681158, 0), Vector(0, 0, 1), 1.27), math.radians(80.405932), math.radians(202.103865)), False)
sketch7.addGeometry(Part.LineSegment(Vector(-57.676593, 32.933395, 0), Vector(-15.58957, 25.81939, 0)), False)
sketch7.addGeometry(Part.ArcOfCircle(Part.Circle(Vector(-15.801237, 24.567153, 0), Vector(0, 0, 1), 1.27), math.radians(-57.251463), math.radians(80.405932)), False)
sketch7.addGeometry(Part.ArcOfCircle(Part.Circle(Vector(0, 0, 0), Vector(0, 0, 1), 27.94), math.radians(122.748537), math.radians(198.87519)), False)
sketch7.addGeometry(Part.ArcOfCircle(Part.Circle(Vector(-27.639248, -9.44966, 0), Vector(0, 0, 1), 1.27), math.radians(-118.782205), math.radians(18.87519)), False)
sketch7.addGeometry(Part.LineSegment(Vector(-28.250729, -10.56276, 0), Vector(-65.661416, 9.988811, 0)), False)
sketch7.addGeometry(Part.ArcOfCircle(Part.Circle(Vector(0, 0, 0), Vector(0, 0, 1), 25.4), math.radians(-80.405932), math.radians(80.405932)), False)
sketch7.addGeometry(Part.LineSegment(Vector(4.233333, -25.044738, 0), Vector(78.316667, -12.522369, 0)), False)
sketch7.addGeometry(Part.ArcOfCircle(Part.Circle(Vector(76.2, 0, 0), Vector(0, 0, 1), 12.7), math.radians(80.405932), math.radians(279.594068)), False)
sketch7.addGeometry(Part.LineSegment(Vector(78.316667, 12.522369, 0), Vector(4.233333, 25.044738, 0)), False)
sketch7.addGeometry(Part.LineSegment(Vector(65.296593, -12.147133, 0), Vector(23.20957, -19.261138, 0)), False)
sketch7.addGeometry(Part.ArcOfCircle(Part.Circle(Vector(22.997904, -18.008901, 0), Vector(0, 0, 1), 1.27), math.radians(141.936674), math.radians(279.594068)), False)
sketch7.addGeometry(Part.ArcOfCircle(Part.Circle(Vector(0, 0, 0), Vector(0, 0, 1), 27.94), math.radians(-38.063326), math.radians(38.063326)), False)
sketch7.addGeometry(Part.ArcOfCircle(Part.Circle(Vector(22.997904, 18.008901, 0), Vector(0, 0, 1), 1.27), math.radians(80.405932), math.radians(218.063326)), False)
sketch7.addGeometry(Part.LineSegment(Vector(23.20957, 19.261138, 0), Vector(65.296593, 12.147133, 0)), False)
sketch7.addGeometry(Part.ArcOfCircle(Part.Circle(Vector(65.084927, 10.894896, 0), Vector(0, 0, 1), 1.27), math.radians(-41.292001), math.radians(80.405932)), False)
sketch7.addGeometry(Part.ArcOfCircle(Part.Circle(Vector(77.489818, 0, 0), Vector(0, 0, 1), 15.24), math.radians(138.707999), math.radians(221.292001)), False)
sketch7.addGeometry(Part.ArcOfCircle(Part.Circle(Vector(65.084927, -10.894896, 0), Vector(0, 0, 1), 1.27), math.radians(-80.405932), math.radians(41.292001)), False)
sketch7.addConstraint(Sketcher.Constraint("Coincident", 0, 1, 1, 1))
sketch7.addConstraint(Sketcher.Constraint("Coincident", 1, 2, 2, 2))
sketch7.addConstraint(Sketcher.Constraint("Coincident", 2, 1, 3, 1))
sketch7.addConstraint(Sketcher.Constraint("Coincident", 3, 2, 0, 2))
sketch7.addConstraint(Sketcher.Constraint("Coincident", 4, 1, 5, 1))
sketch7.addConstraint(Sketcher.Constraint("Coincident", 5, 2, 6, 2))
sketch7.addConstraint(Sketcher.Constraint("Coincident", 6, 1, 7, 1))
sketch7.addConstraint(Sketcher.Constraint("Coincident", 7, 2, 8, 2))
sketch7.addConstraint(Sketcher.Constraint("Coincident", 8, 1, 9, 1))
sketch7.addConstraint(Sketcher.Constraint("Coincident", 9, 2, 10, 2))
sketch7.addConstraint(Sketcher.Constraint("Coincident", 10, 1, 11, 1))
sketch7.addConstraint(Sketcher.Constraint("Coincident", 11, 2, 4, 2))
sketch7.addConstraint(Sketcher.Constraint("Coincident", 12, 1, 13, 1))
sketch7.addConstraint(Sketcher.Constraint("Coincident", 13, 2, 14, 2))
sketch7.addConstraint(Sketcher.Constraint("Coincident", 14, 1, 15, 1))
sketch7.addConstraint(Sketcher.Constraint("Coincident", 15, 2, 12, 2))
sketch7.addConstraint(Sketcher.Constraint("Coincident", 16, 2, 17, 2))
sketch7.addConstraint(Sketcher.Constraint("Coincident", 17, 1, 18, 1))
sketch7.addConstraint(Sketcher.Constraint("Coincident", 18, 2, 19, 2))
sketch7.addConstraint(Sketcher.Constraint("Coincident", 19, 1, 20, 1))
sketch7.addConstraint(Sketcher.Constraint("Coincident", 20, 2, 21, 2))
sketch7.addConstraint(Sketcher.Constraint("Coincident", 21, 1, 22, 1))
sketch7.addConstraint(Sketcher.Constraint("Coincident", 22, 2, 23, 2))
sketch7.addConstraint(Sketcher.Constraint("Coincident", 23, 1, 16, 1))
sketch7.addConstraint(Sketcher.Constraint("Coincident", 0, 3, -1, 1))
sketch7.addConstraint(Sketcher.Constraint("Coincident", 9, 3, -1, 1))
sketch7.addConstraint(Sketcher.Constraint("Coincident", 12, 3, -1, 1))
sketch7.addConstraint(Sketcher.Constraint("Coincident", 18, 3, -1, 1))
sketch7.addConstraint(Sketcher.Constraint("Coincident", 15, 2, 0, 1))
sketch7.addConstraint(Sketcher.Constraint("PointOnObject", 14, 3, -1))
sketch7.addConstraint(Sketcher.Constraint("PointOnObject", 22, 3, -1))
sketch7.addConstraint(Sketcher.Constraint("Radius", 0, Q("1 in")))
sketch7.addConstraint(Sketcher.Constraint("Radius", 2, Q("0.5 in")))
sketch7.addConstraint(Sketcher.Constraint("Radius", 5, Q("0.6 in")))
sketch7.addConstraint(Sketcher.Constraint("Radius", 9, Q("1.1 in")))
sketch7.addConstraint(Sketcher.Constraint("Radius", 14, Q("0.5 in")))
sketch7.addConstraint(Sketcher.Constraint("Radius", 18, Q("1.1 in")))
sketch7.addConstraint(Sketcher.Constraint("Radius", 22, Q("0.6 in")))
sketch7.addConstraint(Sketcher.Constraint("Radius", 4, Q("0.05 in")))
sketch7.addConstraint(Sketcher.Constraint("Radius", 6, Q("0.05 in")))
sketch7.addConstraint(Sketcher.Constraint("Radius", 8, Q("0.05 in")))
sketch7.addConstraint(Sketcher.Constraint("Radius", 10, Q("0.05 in")))
sketch7.addConstraint(Sketcher.Constraint("Radius", 17, Q("0.05 in")))
sketch7.addConstraint(Sketcher.Constraint("Radius", 19, Q("0.05 in")))
sketch7.addConstraint(Sketcher.Constraint("Radius", 21, Q("0.05 in")))
sketch7.addConstraint(Sketcher.Constraint("Radius", 23, Q("0.05 in")))
sketch7.addConstraint(Sketcher.Constraint("DistanceX", -1, 1, 14, 3, Q("3 in")))
sketch7.addConstraint(Sketcher.Constraint("DistanceX", 1, 2, -1, 1, Q("2.75 in")))
sketch7.addConstraint(Sketcher.Constraint("DistanceX", 17, 1, 16, 2, Q("0.0476998 in")))
sketch7.addConstraint(Sketcher.Constraint("DistanceX", 18, 2, 19, 1, Q("0.0476998 in")))
sketch7.addConstraint(Sketcher.Constraint("DistanceY", 17, 3, -1, 1, 18.008901))
sketch7.addConstraint(Sketcher.Constraint("DistanceY", -1, 1, 19, 3, 18.008901))
sketch7.addConstraint(Sketcher.Constraint("DistanceY", 10, 1, 10, 3, 1.113099))
sketch7.addConstraint(Sketcher.Constraint("DistanceX", 10, 1, 3, 2, 16.0211))
sketch7.addConstraint(Sketcher.Constraint("DistanceY", 11, 2, 4, 3, 1.113099))
sketch7.addConstraint(Sketcher.Constraint("DistanceY", 12, 1, 16, 2, 5.7836))
sketch7.addConstraint(Sketcher.Constraint("DistanceY", 19, 1, 15, 2, 5.7836))
sketch7.addConstraint(Sketcher.Constraint("Distance", 7, 42.684032))
sketch7.addConstraint(Sketcher.Constraint("Distance", 11, 42.684032))
sketch7.addConstraint(Sketcher.Constraint("Distance", 16, 42.684032))
sketch7.addConstraint(Sketcher.Constraint("Distance", 20, 42.684032))
sketch7.addConstraint(Sketcher.Constraint("DistanceY", -1, 1, 4, 3, 11.10191))
sketch7.addConstraint(Sketcher.Constraint("DistanceX", 5, 3, -1, 1, 73.184829))
sketch7.addConstraint(Sketcher.Constraint("DistanceX", 6, 3, -1, 1, 57.88826))
sketch7.addConstraint(Sketcher.Constraint("DistanceY", -1, 1, 6, 3, 31.681158))
sketch7.addConstraint(Sketcher.Constraint("DistanceX", -1, 1, 22, 3, 77.489818))
sketch7.addConstraint(Sketcher.Constraint("DistanceX", 2, 1, -1, 1, 78.081481))
sketch7.addConstraint(Sketcher.Constraint("DistanceX", 5, 2, -1, 1, 59.064919))
sketch7.addConstraint(Sketcher.Constraint("DistanceX", 7, 2, -1, 1, 15.58957))
sketch7.addConstraint(Sketcher.Constraint("DistanceY", -1, 1, 7, 2, 25.81939))
sketch7.addConstraint(Sketcher.Constraint("DistanceX", 9, 2, -1, 1, 26.437541))
sketch7.addConstraint(Sketcher.Constraint("DistanceY", 13, 2, -1, 1, 12.522369))
sketch7.addConstraint(Sketcher.Constraint("DistanceY", -1, 1, 14, 1, 12.522369))
sketch7.addConstraint(Sketcher.Constraint("DistanceX", -1, 1, 16, 2, 23.20957))
sketch7.addConstraint(Sketcher.Constraint("DistanceX", -1, 1, 19, 1, 23.20957))
sketch7.addConstraint(Sketcher.Constraint("DistanceX", -1, 1, 21, 1, 66.039149))
sketch7.addConstraint(Sketcher.Constraint("DistanceX", -1, 1, 22, 2, 66.039149))
sketch7.addConstraint(Sketcher.Constraint("DistanceX", 2, 3, 4, 3, 6.916732))
sketch7.addConstraint(Sketcher.Constraint("DistanceY", 2, 3, 6, 3, 6.636421))
sketch7.addConstraint(Sketcher.Constraint("DistanceX", 21, 3, 22, 3, 12.404892))
sketch7.addConstraint(Sketcher.Constraint("DistanceX", 23, 3, 22, 3, 12.404892))
sketch7.addConstraint(Sketcher.Constraint("DistanceX", 4, 1, 4, 3, 0.625761))
sketch7.addConstraint(Sketcher.Constraint("DistanceX", 8, 3, 8, 1, 0.68701))
pad7 = doc.addObject("PartDesign::Pad", "Pad006")
body8.addObject(pad7)
pad7.Profile = sketch7
pad7.Length = Q("0.25 in")
pad7.Reversed = True
doc.recompute()

body9 = doc.addObject("PartDesign::Body", "Body008")
body9.BaseFeature = body8
boolean3 = doc.addObject("PartDesign::Boolean", "Boolean002")
body4.addObject(boolean3)
boolean3.Type = "Cut"
boolean3.addObjects([body9])
doc.recompute()

boolean4 = doc.addObject("PartDesign::Boolean", "Boolean003")
body5.addObject(boolean4)
boolean4.Type = "Cut"
boolean4.addObjects([body8])

doc.recompute()
